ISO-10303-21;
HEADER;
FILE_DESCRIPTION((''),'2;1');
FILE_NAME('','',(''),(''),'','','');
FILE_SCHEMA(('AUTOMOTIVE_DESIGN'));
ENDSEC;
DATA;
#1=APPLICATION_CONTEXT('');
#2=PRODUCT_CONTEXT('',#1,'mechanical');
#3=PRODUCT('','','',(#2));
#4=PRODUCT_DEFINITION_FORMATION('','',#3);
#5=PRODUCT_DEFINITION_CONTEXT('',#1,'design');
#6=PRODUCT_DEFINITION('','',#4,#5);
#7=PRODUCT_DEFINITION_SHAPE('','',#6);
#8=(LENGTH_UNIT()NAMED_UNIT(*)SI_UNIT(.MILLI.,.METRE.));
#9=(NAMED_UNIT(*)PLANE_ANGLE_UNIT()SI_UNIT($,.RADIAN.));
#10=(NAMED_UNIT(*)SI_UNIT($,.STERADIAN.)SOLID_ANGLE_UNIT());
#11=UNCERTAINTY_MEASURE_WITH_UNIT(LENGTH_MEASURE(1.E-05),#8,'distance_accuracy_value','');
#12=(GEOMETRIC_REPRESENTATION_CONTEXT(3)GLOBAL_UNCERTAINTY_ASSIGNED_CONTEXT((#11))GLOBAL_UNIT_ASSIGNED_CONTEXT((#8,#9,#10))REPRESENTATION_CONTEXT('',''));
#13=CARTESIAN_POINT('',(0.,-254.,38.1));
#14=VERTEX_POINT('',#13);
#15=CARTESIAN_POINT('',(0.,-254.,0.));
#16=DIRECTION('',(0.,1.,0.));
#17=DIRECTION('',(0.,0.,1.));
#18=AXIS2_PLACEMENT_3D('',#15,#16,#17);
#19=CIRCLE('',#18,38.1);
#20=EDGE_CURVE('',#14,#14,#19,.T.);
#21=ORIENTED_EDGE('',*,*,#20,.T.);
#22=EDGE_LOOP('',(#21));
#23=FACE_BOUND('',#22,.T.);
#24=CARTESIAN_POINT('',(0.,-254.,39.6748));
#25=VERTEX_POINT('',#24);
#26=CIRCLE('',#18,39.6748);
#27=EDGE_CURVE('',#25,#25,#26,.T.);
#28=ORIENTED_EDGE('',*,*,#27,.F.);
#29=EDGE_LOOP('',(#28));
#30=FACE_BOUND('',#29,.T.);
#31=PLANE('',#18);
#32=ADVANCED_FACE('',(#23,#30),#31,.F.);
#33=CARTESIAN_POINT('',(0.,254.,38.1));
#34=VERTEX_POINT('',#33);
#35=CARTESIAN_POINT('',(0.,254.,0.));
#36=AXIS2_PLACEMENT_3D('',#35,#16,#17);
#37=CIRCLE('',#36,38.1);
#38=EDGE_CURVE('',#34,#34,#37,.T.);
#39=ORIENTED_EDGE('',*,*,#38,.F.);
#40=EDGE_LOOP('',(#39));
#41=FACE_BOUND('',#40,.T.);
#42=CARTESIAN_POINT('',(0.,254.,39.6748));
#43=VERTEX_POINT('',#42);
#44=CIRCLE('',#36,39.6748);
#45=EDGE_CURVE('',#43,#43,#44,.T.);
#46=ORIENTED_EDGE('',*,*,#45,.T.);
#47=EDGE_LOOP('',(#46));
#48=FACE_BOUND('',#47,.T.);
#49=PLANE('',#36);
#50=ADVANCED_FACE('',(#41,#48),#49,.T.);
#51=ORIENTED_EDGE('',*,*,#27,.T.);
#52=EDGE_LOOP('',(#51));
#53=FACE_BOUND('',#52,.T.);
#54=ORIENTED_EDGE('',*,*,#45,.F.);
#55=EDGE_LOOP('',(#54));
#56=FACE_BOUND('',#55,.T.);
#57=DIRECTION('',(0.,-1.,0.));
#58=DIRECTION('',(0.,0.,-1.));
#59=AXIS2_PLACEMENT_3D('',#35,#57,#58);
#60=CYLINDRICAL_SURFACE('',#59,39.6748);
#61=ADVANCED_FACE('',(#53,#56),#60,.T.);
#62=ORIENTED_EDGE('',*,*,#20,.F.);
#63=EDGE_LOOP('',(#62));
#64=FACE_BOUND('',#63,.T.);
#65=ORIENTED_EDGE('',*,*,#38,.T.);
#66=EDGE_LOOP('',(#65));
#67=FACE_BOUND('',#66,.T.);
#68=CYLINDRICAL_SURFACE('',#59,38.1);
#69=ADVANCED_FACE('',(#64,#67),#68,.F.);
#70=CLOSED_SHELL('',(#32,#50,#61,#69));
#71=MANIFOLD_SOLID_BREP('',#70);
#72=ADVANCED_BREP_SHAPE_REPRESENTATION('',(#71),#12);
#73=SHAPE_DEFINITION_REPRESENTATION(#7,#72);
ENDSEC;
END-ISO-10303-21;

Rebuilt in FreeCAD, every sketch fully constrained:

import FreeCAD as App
import Part
import Sketcher
Q = App.Units.Quantity

doc = App.newDocument("Part")
body = doc.addObject("PartDesign::Body", "Body")

# Sketch on XZ plane
sketch1 = doc.addObject("Sketcher::SketchObject", "Sketch")
body.addObject(sketch1)
sketch1.AttachmentSupport = (doc.XZ_Plane, [""])
sketch1.MapMode = "FlatFace"
sketch1.addGeometry(Part.Circle(App.Vector(0, 0, 0), App.Vector(0, 0, 1), 39.6748), False)
sketch1.addGeometry(Part.Circle(App.Vector(0, 0, 0), App.Vector(0, 0, 1), 38.1), False)
sketch1.addConstraint(Sketcher.Constraint("Coincident", 0, 3, -1, 1))
sketch1.addConstraint(Sketcher.Constraint("Coincident", 1, 3, -1, 1))
sketch1.addConstraint(Sketcher.Constraint("Diameter", 1, Q("3 in")))
sketch1.addConstraint(Sketcher.Constraint("Diameter", 0, Q("3.124 in")))
pad1 = doc.addObject("PartDesign::Pad", "Pad")
body.addObject(pad1)
pad1.Profile = sketch1
pad1.Length = Q("20 in")
pad1.Midplane = True

doc.recompute()
